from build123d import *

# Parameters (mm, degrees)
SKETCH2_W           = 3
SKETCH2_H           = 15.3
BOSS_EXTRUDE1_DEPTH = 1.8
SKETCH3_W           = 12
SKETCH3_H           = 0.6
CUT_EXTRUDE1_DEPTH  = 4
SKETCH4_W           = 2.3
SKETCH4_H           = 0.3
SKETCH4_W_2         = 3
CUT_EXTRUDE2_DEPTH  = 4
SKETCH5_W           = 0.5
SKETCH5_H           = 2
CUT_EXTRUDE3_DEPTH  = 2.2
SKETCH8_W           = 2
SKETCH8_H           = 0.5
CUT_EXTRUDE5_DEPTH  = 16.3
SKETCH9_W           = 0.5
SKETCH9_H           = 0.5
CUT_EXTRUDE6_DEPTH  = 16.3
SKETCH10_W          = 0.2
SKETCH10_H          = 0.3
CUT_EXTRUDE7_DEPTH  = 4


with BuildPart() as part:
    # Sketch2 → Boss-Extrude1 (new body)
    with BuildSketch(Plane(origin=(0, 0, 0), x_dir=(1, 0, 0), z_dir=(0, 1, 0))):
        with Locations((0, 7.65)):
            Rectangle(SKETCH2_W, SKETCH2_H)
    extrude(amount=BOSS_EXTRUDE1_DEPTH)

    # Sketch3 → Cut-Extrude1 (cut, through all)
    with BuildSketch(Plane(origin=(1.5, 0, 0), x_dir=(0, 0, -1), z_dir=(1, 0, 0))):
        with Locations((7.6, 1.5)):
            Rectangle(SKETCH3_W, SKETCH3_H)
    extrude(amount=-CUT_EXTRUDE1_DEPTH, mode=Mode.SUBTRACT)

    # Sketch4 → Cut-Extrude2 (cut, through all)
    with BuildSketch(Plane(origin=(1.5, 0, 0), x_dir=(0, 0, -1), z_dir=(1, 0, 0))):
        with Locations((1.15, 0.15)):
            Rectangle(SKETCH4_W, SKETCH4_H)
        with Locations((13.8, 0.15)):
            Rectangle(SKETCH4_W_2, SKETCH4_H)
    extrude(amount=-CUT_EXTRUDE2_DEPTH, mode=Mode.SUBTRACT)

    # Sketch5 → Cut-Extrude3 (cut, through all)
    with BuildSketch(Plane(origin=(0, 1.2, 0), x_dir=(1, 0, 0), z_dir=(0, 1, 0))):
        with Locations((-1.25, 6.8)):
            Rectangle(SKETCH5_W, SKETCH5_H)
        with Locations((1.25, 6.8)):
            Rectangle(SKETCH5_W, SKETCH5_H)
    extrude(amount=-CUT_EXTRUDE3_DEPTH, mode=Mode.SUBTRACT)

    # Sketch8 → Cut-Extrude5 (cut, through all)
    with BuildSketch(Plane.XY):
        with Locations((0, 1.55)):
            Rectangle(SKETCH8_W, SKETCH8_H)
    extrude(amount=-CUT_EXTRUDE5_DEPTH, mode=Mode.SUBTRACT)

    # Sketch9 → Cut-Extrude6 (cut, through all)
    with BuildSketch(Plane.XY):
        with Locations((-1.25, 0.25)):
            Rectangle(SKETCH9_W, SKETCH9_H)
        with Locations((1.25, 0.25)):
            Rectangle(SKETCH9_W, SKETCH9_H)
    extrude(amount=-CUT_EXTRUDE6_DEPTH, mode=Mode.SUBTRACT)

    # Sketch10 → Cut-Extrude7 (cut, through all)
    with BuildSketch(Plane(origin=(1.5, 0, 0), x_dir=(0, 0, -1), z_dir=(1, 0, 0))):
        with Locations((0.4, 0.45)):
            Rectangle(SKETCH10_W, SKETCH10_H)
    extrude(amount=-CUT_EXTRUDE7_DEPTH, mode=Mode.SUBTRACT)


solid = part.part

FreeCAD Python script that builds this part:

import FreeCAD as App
import Part
import Sketcher
from FreeCAD import Vector


def add_polygon(sketch, points):
    """Adds a closed chain of lines whose ends are joined by coincident constraints."""
    first, n = sketch.GeometryCount, len(points)
    for a, b in zip(points, points[1:] + points[:1]):
        sketch.addGeometry(Part.LineSegment(App.Vector(*a, 0), App.Vector(*b, 0)), False)
    for i in range(n):
        sketch.addConstraint(Sketcher.Constraint("Coincident", first + i, 2, first + (i + 1) % n, 1))

doc = App.newDocument("Part")
body = doc.addObject("PartDesign::Body", "Body")

# Sketch on XZ plane
sketch1 = body.newObject("Sketcher::SketchObject", "Sketch")
sketch1.AttachmentSupport = (doc.getObject("XZ_Plane"), [""])
sketch1.MapMode = "FlatFace"
add_polygon(sketch1, [(-1.5, -15.3), (-1.5, 0), (1.5, 0), (1.5, -15.3)])  # lines 0-3
sketch1.addConstraint(Sketcher.Constraint("Vertical", 0))
sketch1.addConstraint(Sketcher.Constraint("Horizontal", 1))
sketch1.addConstraint(Sketcher.Constraint("Vertical", 2))
sketch1.addConstraint(Sketcher.Constraint("Horizontal", 3))
sketch1.addConstraint(Sketcher.Constraint("Symmetric", 0, 2, 1, 2, -1, 1))
sketch1.addConstraint(Sketcher.Constraint("DistanceX", 1, 1, 1, 2, 3.0))
sketch1.addConstraint(Sketcher.Constraint("DistanceY", 0, 1, 0, 2, 15.3))
pad1 = body.newObject("PartDesign::Pad", "Pad")
pad1.Profile = sketch1
pad1.Length = 1.8
pad1.Reversed = True

# Sketch on YZ plane
sketch2 = body.newObject("Sketcher::SketchObject", "Sketch001")
sketch2.AttachmentSupport = (doc.getObject("YZ_Plane"), [""])
sketch2.MapMode = "FlatFace"
sketch2.AttachmentOffset = App.Placement(Vector(0, 0, 1.5), App.Rotation())
add_polygon(sketch2, [(1.8, -1.6), (1.2, -1.6), (1.2, -13.6), (1.8, -13.6)])  # lines 0-3
sketch2.addConstraint(Sketcher.Constraint("Horizontal", 0))
sketch2.addConstraint(Sketcher.Constraint("Vertical", 1))
sketch2.addConstraint(Sketcher.Constraint("Horizontal", 2))
sketch2.addConstraint(Sketcher.Constraint("Vertical", 3))
sketch2.addConstraint(Sketcher.Constraint("DistanceY", 1, 2, 1, 1, 12.0))
sketch2.addConstraint(Sketcher.Constraint("DistanceX", 0, 2, 0, 1, 0.6))
sketch2.addConstraint(Sketcher.Constraint("DistanceX", -1, 1, 0, 2, 1.2))
sketch2.addConstraint(Sketcher.Constraint("DistanceY", 0, 2, -1, 1, 1.6))
pocket1 = body.newObject("PartDesign::Pocket", "Pocket")
pocket1.Profile = sketch2
pocket1.Type = "ThroughAll"

# Sketch on YZ plane
sketch3 = body.newObject("Sketcher::SketchObject", "Sketch002")
sketch3.AttachmentSupport = (doc.getObject("YZ_Plane"), [""])
sketch3.MapMode = "FlatFace"
sketch3.AttachmentOffset = App.Placement(Vector(0, 0, 1.5), App.Rotation())
add_polygon(sketch3, [(0.3, 0), (0, 0), (0, -2.3), (0.3, -2.3)])  # lines 0-3
add_polygon(sketch3, [(0.3, -12.3), (0, -12.3), (0, -15.3), (0.3, -15.3)])  # lines 4-7
sketch3.addConstraint(Sketcher.Constraint("Horizontal", 0))
sketch3.addConstraint(Sketcher.Constraint("Vertical", 1))
sketch3.addConstraint(Sketcher.Constraint("Horizontal", 2))
sketch3.addConstraint(Sketcher.Constraint("Vertical", 3))
sketch3.addConstraint(Sketcher.Constraint("Horizontal", 4))
sketch3.addConstraint(Sketcher.Constraint("Vertical", 5))
sketch3.addConstraint(Sketcher.Constraint("Horizontal", 6))
sketch3.addConstraint(Sketcher.Constraint("Vertical", 7))
sketch3.addConstraint(Sketcher.Constraint("Coincident", 0, 2, -1, 1))
sketch3.addConstraint(Sketcher.Constraint("PointOnObject", 4, 2, -2))
sketch3.addConstraint(Sketcher.Constraint("Vertical", 3, 2, 6, 2))
sketch3.addConstraint(Sketcher.Constraint("DistanceY", 5, 2, 5, 1, 3.0))
sketch3.addConstraint(Sketcher.Constraint("DistanceX", 0, 2, 0, 1, 0.3))
sketch3.addConstraint(Sketcher.Constraint("DistanceY", 1, 2, 1, 1, 2.3))
sketch3.addConstraint(Sketcher.Constraint("DistanceY", 4, 2, 1, 2, 10.0))
pocket2 = body.newObject("PartDesign::Pocket", "Pocket001")
pocket2.Profile = sketch3
pocket2.Type = "ThroughAll"

# Sketch on XZ plane
sketch4 = body.newObject("Sketcher::SketchObject", "Sketch003")
sketch4.AttachmentSupport = (doc.getObject("XZ_Plane"), [""])
sketch4.MapMode = "FlatFace"
sketch4.AttachmentOffset = App.Placement(Vector(0, 0, -1.2), App.Rotation())
add_polygon(sketch4, [(-1.5, -7.8), (-1.5, -5.8), (-1, -5.8), (-1, -7.8)])  # lines 0-3
add_polygon(sketch4, [(1, -7.8), (1, -5.8), (1.5, -5.8), (1.5, -7.8)])  # lines 4-7
sketch4.addConstraint(Sketcher.Constraint("Vertical", 0))
sketch4.addConstraint(Sketcher.Constraint("Horizontal", 1))
sketch4.addConstraint(Sketcher.Constraint("Vertical", 2))
sketch4.addConstraint(Sketcher.Constraint("Horizontal", 3))
sketch4.addConstraint(Sketcher.Constraint("Vertical", 4))
sketch4.addConstraint(Sketcher.Constraint("Horizontal", 5))
sketch4.addConstraint(Sketcher.Constraint("Vertical", 6))
sketch4.addConstraint(Sketcher.Constraint("Horizontal", 7))
sketch4.addConstraint(Sketcher.Constraint("Symmetric", 1, 2, 4, 2, -2))
sketch4.addConstraint(Sketcher.Constraint("Symmetric", 3, 2, 6, 2, -2))
sketch4.addConstraint(Sketcher.Constraint("DistanceY", 0, 1, 0, 2, 2.0))
sketch4.addConstraint(Sketcher.Constraint("DistanceX", 1, 1, 1, 2, 0.5))
sketch4.addConstraint(Sketcher.Constraint("DistanceX", 1, 2, -1, 1, 1.0))
sketch4.addConstraint(Sketcher.Constraint("DistanceY", 0, 2, -1, 1, 5.8))
pocket3 = body.newObject("PartDesign::Pocket", "Pocket002")
pocket3.Profile = sketch4
pocket3.Type = "ThroughAll"
pocket3.Reversed = True

# Sketch on XY plane
sketch5 = body.newObject("Sketcher::SketchObject", "Sketch004")
sketch5.AttachmentSupport = (doc.getObject("XY_Plane"), [""])
sketch5.MapMode = "FlatFace"
add_polygon(sketch5, [(-1, 1.8), (-1, 1.3), (1, 1.3), (1, 1.8)])  # lines 0-3
sketch5.addConstraint(Sketcher.Constraint("Vertical", 0))
sketch5.addConstraint(Sketcher.Constraint("Horizontal", 1))
sketch5.addConstraint(Sketcher.Constraint("Vertical", 2))
sketch5.addConstraint(Sketcher.Constraint("Horizontal", 3))
sketch5.addConstraint(Sketcher.Constraint("DistanceX", 1, 1, 1, 2, 2.0))
sketch5.addConstraint(Sketcher.Constraint("DistanceY", 0, 2, 0, 1, 0.5))
sketch5.addConstraint(Sketcher.Constraint("DistanceX", 0, 2, -1, 1, 1.0))
sketch5.addConstraint(Sketcher.Constraint("DistanceY", -1, 1, 0, 2, 1.3))
pocket4 = body.newObject("PartDesign::Pocket", "Pocket003")
pocket4.Profile = sketch5
pocket4.Type = "ThroughAll"

# Sketch on XY plane
sketch6 = body.newObject("Sketcher::SketchObject", "Sketch005")
sketch6.AttachmentSupport = (doc.getObject("XY_Plane"), [""])
sketch6.MapMode = "FlatFace"
add_polygon(sketch6, [(-1.5, 0.5), (-1.5, 0), (-1, 0), (-1, 0.5)])  # lines 0-3
add_polygon(sketch6, [(1, 0.5), (1, 0), (1.5, 0), (1.5, 0.5)])  # lines 4-7
sketch6.addConstraint(Sketcher.Constraint("Vertical", 0))
sketch6.addConstraint(Sketcher.Constraint("Horizontal", 1))
sketch6.addConstraint(Sketcher.Constraint("Vertical", 2))
sketch6.addConstraint(Sketcher.Constraint("Horizontal", 3))
sketch6.addConstraint(Sketcher.Constraint("Vertical", 4))
sketch6.addConstraint(Sketcher.Constraint("Horizontal", 5))
sketch6.addConstraint(Sketcher.Constraint("Vertical", 6))
sketch6.addConstraint(Sketcher.Constraint("Horizontal", 7))
sketch6.addConstraint(Sketcher.Constraint("Symmetric", 1, 2, 4, 2, -1, 1))
sketch6.addConstraint(Sketcher.Constraint("Symmetric", 0, 2, 5, 2, -2))
sketch6.addConstraint(Sketcher.Constraint("Horizontal", 3, 2, 6, 2))
sketch6.addConstraint(Sketcher.Constraint("Equal", 7, 0))
sketch6.addConstraint(Sketcher.Constraint("DistanceX", 1, 1, 1, 2, 0.5))
sketch6.addConstraint(Sketcher.Constraint("DistanceX", 1, 2, -1, 1, 1.0))
pocket5 = body.newObject("PartDesign::Pocket", "Pocket004")
pocket5.Profile = sketch6
pocket5.Type = "ThroughAll"

# Sketch on YZ plane
sketch7 = body.newObject("Sketcher::SketchObject", "Sketch006")
sketch7.AttachmentSupport = (doc.getObject("YZ_Plane"), [""])
sketch7.MapMode = "FlatFace"
sketch7.AttachmentOffset = App.Placement(Vector(0, 0, 1.5), App.Rotation())
add_polygon(sketch7, [(0.6, -0.3), (0.3, -0.3), (0.3, -0.5), (0.6, -0.5)])  # lines 0-3
sketch7.addConstraint(Sketcher.Constraint("Horizontal", 0))
sketch7.addConstraint(Sketcher.Constraint("Vertical", 1))
sketch7.addConstraint(Sketcher.Constraint("Horizontal", 2))
sketch7.addConstraint(Sketcher.Constraint("Vertical", 3))
sketch7.addConstraint(Sketcher.Constraint("DistanceX", 0, 2, 0, 1, 0.3))
sketch7.addConstraint(Sketcher.Constraint("DistanceY", 1, 2, 1, 1, 0.2))
sketch7.addConstraint(Sketcher.Constraint("DistanceX", -1, 1, 0, 2, 0.3))
sketch7.addConstraint(Sketcher.Constraint("DistanceY", 0, 2, -1, 1, 0.3))
pocket6 = body.newObject("PartDesign::Pocket", "Pocket005")
pocket6.Profile = sketch7
pocket6.Type = "ThroughAll"

doc.recompute()
